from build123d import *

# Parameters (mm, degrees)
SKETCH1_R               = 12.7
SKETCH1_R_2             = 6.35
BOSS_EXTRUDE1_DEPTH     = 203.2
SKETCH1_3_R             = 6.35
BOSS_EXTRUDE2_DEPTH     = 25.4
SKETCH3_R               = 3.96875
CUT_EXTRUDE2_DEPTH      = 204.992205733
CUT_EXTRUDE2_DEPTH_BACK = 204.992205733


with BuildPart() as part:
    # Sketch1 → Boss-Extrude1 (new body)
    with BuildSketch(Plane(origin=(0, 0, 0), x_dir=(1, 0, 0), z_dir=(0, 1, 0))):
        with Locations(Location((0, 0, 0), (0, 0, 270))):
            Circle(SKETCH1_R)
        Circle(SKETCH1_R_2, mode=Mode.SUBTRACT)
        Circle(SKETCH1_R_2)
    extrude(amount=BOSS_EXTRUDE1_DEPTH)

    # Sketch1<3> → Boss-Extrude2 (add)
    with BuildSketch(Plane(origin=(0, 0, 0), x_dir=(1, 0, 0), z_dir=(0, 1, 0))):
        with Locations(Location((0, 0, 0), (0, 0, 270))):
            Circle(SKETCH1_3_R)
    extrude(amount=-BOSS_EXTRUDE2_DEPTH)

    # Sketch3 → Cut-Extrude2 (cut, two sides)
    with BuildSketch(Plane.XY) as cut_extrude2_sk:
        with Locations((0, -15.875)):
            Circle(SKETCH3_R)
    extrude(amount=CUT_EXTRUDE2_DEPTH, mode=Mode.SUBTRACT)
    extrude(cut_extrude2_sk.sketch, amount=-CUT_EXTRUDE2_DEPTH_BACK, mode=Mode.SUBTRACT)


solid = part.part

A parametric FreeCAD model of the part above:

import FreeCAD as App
import Part
import Sketcher
Q = App.Units.Quantity

doc = App.newDocument("Part")
body = doc.addObject("PartDesign::Body", "Body")

# Sketch on XZ plane
sketch1 = body.newObject("Sketcher::SketchObject", "Sketch")
sketch1.AttachmentSupport = (doc.getObject("XZ_Plane"), [""])
sketch1.MapMode = "FlatFace"
sketch1.addGeometry(Part.Circle(App.Vector(0, 0, 0), App.Vector(0, 0, 1), 13), False)
sketch1.addConstraint(Sketcher.Constraint("Coincident", 0, 3, -1, 1))
sketch1.addConstraint(Sketcher.Constraint("Diameter", 0, Q("1 in")))
pad1 = body.newObject("PartDesign::Pad", "Pad")
pad1.Profile = sketch1
pad1.Length = Q("8 in")
pad1.Reversed = True

# Sketch on XZ plane
sketch2 = body.newObject("Sketcher::SketchObject", "Sketch001")
sketch2.AttachmentSupport = (doc.getObject("XZ_Plane"), [""])
sketch2.MapMode = "FlatFace"
sketch2.addGeometry(Part.Circle(App.Vector(0, 0, 0), App.Vector(0, 0, 1), 6), False)
sketch2.addConstraint(Sketcher.Constraint("Coincident", 0, 3, -1, 1))
sketch2.addConstraint(Sketcher.Constraint("Diameter", 0, Q("0.5 in")))
pad2 = body.newObject("PartDesign::Pad", "Pad001")
pad2.Profile = sketch2
pad2.Length = Q("1 in")

# Sketch on XY plane
sketch3 = body.newObject("Sketcher::SketchObject", "Sketch002")
sketch3.AttachmentSupport = (doc.getObject("XY_Plane"), [""])
sketch3.MapMode = "FlatFace"
sketch3.addGeometry(Part.Circle(App.Vector(0, -15.9, 0), App.Vector(0, 0, 1), 4), False)
sketch3.addConstraint(Sketcher.Constraint("PointOnObject", 0, 3, -2))
sketch3.addConstraint(Sketcher.Constraint("Diameter", 0, Q("0.3125 in")))
sketch3.addConstraint(Sketcher.Constraint("DistanceY", 0, 3, -1, 1, Q("0.625 in")))
pocket1 = body.newObject("PartDesign::Pocket", "Pocket")
pocket1.Profile = sketch3
pocket1.Type = "ThroughAll"
pocket1.Midplane = True

doc.recompute()
